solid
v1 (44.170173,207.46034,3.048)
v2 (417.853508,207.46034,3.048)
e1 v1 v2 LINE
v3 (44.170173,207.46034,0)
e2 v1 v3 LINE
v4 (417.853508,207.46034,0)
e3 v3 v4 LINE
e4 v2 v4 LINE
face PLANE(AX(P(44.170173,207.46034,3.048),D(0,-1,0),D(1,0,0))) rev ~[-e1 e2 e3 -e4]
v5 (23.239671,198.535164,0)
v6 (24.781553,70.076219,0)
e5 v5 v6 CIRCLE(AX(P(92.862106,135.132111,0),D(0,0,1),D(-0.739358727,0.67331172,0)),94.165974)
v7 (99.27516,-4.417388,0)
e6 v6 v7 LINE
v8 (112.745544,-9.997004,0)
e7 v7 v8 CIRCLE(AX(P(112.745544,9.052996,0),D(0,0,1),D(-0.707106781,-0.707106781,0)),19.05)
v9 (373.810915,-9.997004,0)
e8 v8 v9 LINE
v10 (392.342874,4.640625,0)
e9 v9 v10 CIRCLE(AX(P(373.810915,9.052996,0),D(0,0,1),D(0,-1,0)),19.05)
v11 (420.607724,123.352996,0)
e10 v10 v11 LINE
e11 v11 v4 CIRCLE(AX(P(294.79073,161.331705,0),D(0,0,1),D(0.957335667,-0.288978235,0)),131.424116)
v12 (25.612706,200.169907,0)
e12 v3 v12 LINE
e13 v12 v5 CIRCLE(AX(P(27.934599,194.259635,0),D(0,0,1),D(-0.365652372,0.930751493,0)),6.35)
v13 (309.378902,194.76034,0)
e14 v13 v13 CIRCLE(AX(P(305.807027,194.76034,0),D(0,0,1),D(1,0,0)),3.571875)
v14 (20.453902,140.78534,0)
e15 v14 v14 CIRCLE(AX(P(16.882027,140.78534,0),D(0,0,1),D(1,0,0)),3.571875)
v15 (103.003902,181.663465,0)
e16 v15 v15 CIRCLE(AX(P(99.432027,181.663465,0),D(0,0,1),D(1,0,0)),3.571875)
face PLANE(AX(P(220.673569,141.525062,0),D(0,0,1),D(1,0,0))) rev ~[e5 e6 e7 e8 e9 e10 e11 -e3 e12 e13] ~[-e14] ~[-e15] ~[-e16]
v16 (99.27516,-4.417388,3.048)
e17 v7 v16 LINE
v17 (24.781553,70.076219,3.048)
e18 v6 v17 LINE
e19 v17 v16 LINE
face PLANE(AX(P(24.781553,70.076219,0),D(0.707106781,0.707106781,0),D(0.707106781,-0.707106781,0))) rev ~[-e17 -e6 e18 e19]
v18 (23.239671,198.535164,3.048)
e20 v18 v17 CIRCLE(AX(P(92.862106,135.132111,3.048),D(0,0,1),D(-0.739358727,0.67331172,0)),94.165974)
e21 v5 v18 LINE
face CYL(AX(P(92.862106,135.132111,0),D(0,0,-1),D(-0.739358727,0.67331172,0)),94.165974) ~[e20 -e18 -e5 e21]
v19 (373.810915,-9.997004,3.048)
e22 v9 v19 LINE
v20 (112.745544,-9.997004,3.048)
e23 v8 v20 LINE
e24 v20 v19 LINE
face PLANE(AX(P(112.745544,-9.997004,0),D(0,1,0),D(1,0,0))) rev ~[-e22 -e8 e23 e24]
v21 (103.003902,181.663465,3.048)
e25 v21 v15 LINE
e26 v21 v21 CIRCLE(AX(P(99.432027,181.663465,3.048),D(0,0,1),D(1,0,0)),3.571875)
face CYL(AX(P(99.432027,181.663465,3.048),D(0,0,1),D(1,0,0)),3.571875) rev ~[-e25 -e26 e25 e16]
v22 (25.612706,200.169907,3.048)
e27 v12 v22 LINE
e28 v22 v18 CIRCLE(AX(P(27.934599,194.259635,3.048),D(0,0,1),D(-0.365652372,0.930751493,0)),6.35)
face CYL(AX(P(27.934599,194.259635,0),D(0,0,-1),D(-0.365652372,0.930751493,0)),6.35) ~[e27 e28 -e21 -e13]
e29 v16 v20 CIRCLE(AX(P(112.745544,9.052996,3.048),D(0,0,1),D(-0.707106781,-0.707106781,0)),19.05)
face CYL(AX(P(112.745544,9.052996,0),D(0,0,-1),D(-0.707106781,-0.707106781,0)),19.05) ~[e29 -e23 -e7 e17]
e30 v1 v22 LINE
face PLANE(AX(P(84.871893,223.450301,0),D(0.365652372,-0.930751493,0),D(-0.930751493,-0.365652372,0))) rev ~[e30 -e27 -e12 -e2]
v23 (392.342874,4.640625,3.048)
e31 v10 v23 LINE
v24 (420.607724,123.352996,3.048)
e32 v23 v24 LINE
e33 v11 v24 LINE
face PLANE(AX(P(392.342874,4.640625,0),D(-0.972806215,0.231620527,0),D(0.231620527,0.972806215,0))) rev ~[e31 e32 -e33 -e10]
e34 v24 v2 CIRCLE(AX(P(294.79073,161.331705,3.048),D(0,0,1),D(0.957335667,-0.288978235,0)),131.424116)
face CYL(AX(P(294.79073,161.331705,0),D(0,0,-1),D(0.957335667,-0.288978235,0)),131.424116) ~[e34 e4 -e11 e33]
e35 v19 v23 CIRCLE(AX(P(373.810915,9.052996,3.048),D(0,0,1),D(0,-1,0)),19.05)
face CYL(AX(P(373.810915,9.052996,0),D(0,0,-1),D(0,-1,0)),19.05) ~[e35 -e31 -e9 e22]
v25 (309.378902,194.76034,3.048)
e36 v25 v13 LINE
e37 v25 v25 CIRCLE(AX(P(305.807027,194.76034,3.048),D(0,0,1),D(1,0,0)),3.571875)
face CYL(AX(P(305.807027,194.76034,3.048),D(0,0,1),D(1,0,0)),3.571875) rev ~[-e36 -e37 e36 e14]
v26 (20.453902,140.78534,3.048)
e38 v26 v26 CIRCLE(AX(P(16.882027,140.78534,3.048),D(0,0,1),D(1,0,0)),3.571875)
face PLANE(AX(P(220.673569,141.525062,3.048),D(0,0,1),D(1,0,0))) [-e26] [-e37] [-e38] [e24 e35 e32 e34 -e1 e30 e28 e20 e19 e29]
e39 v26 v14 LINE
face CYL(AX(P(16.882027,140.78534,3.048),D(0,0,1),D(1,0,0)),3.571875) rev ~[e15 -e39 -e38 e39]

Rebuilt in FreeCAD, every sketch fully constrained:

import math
import FreeCAD as App
import Part
import Sketcher
from FreeCAD import Vector
Q = App.Units.Quantity

doc = App.newDocument("Part")
body = doc.addObject("PartDesign::Body", "Body")

sketch1 = doc.addObject("Sketcher::SketchObject", "Sketch")
body.addObject(sketch1)
sketch1.AttachmentSupport = (doc.XY_Plane, [""])
sketch1.MapMode = "FlatFace"
sketch1.addGeometry(Part.LineSegment(Vector(356.607027, 293.18534, 0), Vector(89.907027, 293.18534, 0)), False)
sketch1.addGeometry(Part.LineSegment(Vector(89.907027, 293.18534, 0), Vector(89.907027, 230.838141, 0)), False)
sketch1.addGeometry(Part.ArcOfCircle(Part.Circle(Vector(81.969527, 230.838141, 0), Vector(0, 0, 1), 7.9375), math.radians(-68.552264), math.radians(0)), False)
sketch1.addGeometry(Part.LineSegment(Vector(84.871893, 223.450301, 0), Vector(25.612706, 200.169907, 0)), False)
sketch1.addGeometry(Part.ArcOfCircle(Part.Circle(Vector(27.934599, 194.259635, 0), Vector(0, 0, 1), 6.35), math.radians(111.447736), math.radians(137.676818)), False)
sketch1.addGeometry(Part.ArcOfCircle(Part.Circle(Vector(92.862106, 135.132111, 0), Vector(0, 0, 1), 94.165974), math.radians(137.676818), math.radians(223.698549)), False)
sketch1.addGeometry(Part.LineSegment(Vector(24.781553, 70.076219, 0), Vector(99.27516, -4.417388, 0)), False)
sketch1.addGeometry(Part.ArcOfCircle(Part.Circle(Vector(112.745544, 9.052996, 0), Vector(0, 0, 1), 19.05), math.radians(-135), math.radians(-90)), False)
sketch1.addGeometry(Part.LineSegment(Vector(112.745544, -9.997004, 0), Vector(373.810915, -9.997004, 0)), False)
sketch1.addGeometry(Part.ArcOfCircle(Part.Circle(Vector(373.810915, 9.052996, 0), Vector(0, 0, 1), 19.05), math.radians(-90), math.radians(-13.392498)), False)
sketch1.addGeometry(Part.LineSegment(Vector(392.342874, 4.640625, 0), Vector(420.607724, 123.352996, 0)), False)
sketch1.addGeometry(Part.ArcOfCircle(Part.Circle(Vector(294.79073, 161.331705, 0), Vector(0, 0, 1), 131.424116), math.radians(-16.796794), math.radians(61.942506)), False)
sketch1.addGeometry(Part.LineSegment(Vector(356.607027, 277.31034, 0), Vector(356.607027, 293.18534, 0)), False)
sketch1.addConstraint(Sketcher.Constraint("Coincident", 0, 2, 1, 1))
sketch1.addConstraint(Sketcher.Constraint("Coincident", 1, 2, 2, 2))
sketch1.addConstraint(Sketcher.Constraint("Coincident", 2, 1, 3, 1))
sketch1.addConstraint(Sketcher.Constraint("Coincident", 3, 2, 4, 1))
sketch1.addConstraint(Sketcher.Constraint("Coincident", 4, 2, 5, 1))
sketch1.addConstraint(Sketcher.Constraint("Coincident", 5, 2, 6, 1))
sketch1.addConstraint(Sketcher.Constraint("Coincident", 6, 2, 7, 1))
sketch1.addConstraint(Sketcher.Constraint("Coincident", 7, 2, 8, 1))
sketch1.addConstraint(Sketcher.Constraint("Coincident", 8, 2, 9, 1))
sketch1.addConstraint(Sketcher.Constraint("Coincident", 9, 2, 10, 1))
sketch1.addConstraint(Sketcher.Constraint("Coincident", 10, 2, 11, 1))
sketch1.addConstraint(Sketcher.Constraint("Coincident", 11, 2, 12, 1))
sketch1.addConstraint(Sketcher.Constraint("Coincident", 12, 2, 0, 1))
sketch1.addConstraint(Sketcher.Constraint("Horizontal", 0))
sketch1.addConstraint(Sketcher.Constraint("Vertical", 1))
sketch1.addConstraint(Sketcher.Constraint("Horizontal", 8))
sketch1.addConstraint(Sketcher.Constraint("Vertical", 12))
sketch1.addConstraint(Sketcher.Constraint("Radius", 4, Q("0.25 in")))
sketch1.addConstraint(Sketcher.Constraint("Radius", 7, Q("0.75 in")))
sketch1.addConstraint(Sketcher.Constraint("Radius", 9, Q("0.75 in")))
sketch1.addConstraint(Sketcher.Constraint("DistanceX", 0, 2, 0, 1, Q("10.5 in")))
sketch1.addConstraint(Sketcher.Constraint("Radius", 2, Q("0.3125 in")))
sketch1.addConstraint(Sketcher.Constraint("DistanceY", 9, 3, 10, 2, Q("4.5 in")))
sketch1.addConstraint(Sketcher.Constraint("DistanceY", 12, 1, 12, 2, Q("0.625 in")))
sketch1.addConstraint(Sketcher.Constraint("DistanceY", 1, 2, 1, 1, 62.347199))
sketch1.addConstraint(Sketcher.Constraint("Radius", 5, 94.165974))
sketch1.addConstraint(Sketcher.Constraint("Radius", 11, 131.424116))
sketch1.addConstraint(Sketcher.Constraint("DistanceY", 7, 3, 4, 3, Q("7.2915999 in")))
sketch1.addConstraint(Sketcher.Constraint("DistanceX", 8, 1, 8, 2, 261.065371))
sketch1.addConstraint(Sketcher.Constraint("DistanceX", -1, 1, 4, 3, 27.934599))
sketch1.addConstraint(Sketcher.Constraint("DistanceY", -1, 1, 2, 1, 223.450301))
sketch1.addConstraint(Sketcher.Constraint("DistanceY", 2, 3, 0, 2, 62.347199))
sketch1.addConstraint(Sketcher.Constraint("DistanceX", 3, 2, 5, 3, 67.249399))
sketch1.addConstraint(Sketcher.Constraint("DistanceY", 6, 2, 5, 3, 139.549498))
sketch1.addConstraint(Sketcher.Constraint("Distance", 6, 105.34987))
sketch1.addConstraint(Sketcher.Constraint("Distance", 10, 122.030852))
sketch1.addConstraint(Sketcher.Constraint("DistanceY", -1, 1, 2, 3, 230.838141))
sketch1.addConstraint(Sketcher.Constraint("DistanceY", -1, 1, 5, 3, 135.132111))
sketch1.addConstraint(Sketcher.Constraint("DistanceX", -1, 1, 11, 3, 294.79073))
sketch1.addConstraint(Sketcher.Constraint("DistanceX", -1, 1, 4, 2, 23.239671))
sketch1.addConstraint(Sketcher.Constraint("DistanceY", -1, 1, 5, 2, 70.076219))
sketch1.addConstraint(Sketcher.Constraint("DistanceX", -1, 1, 6, 2, 99.27516))
sketch1.addConstraint(Sketcher.Constraint("DistanceX", 2, 3, 5, 3, 10.892579))
sketch1.addConstraint(Sketcher.Constraint("DistanceX", 7, 3, 9, 3, 261.065371))
sketch1.addConstraint(Sketcher.Constraint("DistanceX", 5, 2, 7, 2, 87.963991))
pad1 = doc.addObject("PartDesign::Pad", "Pad")
body.addObject(pad1)
pad1.Profile = sketch1
pad1.Length = Q("0.12 in")

sketch2 = doc.addObject("Sketcher::SketchObject", "Sketch001")
body.addObject(sketch2)
sketch2.AttachmentSupport = (doc.XY_Plane, [""])
sketch2.MapMode = "FlatFace"
sketch2.AttachmentOffset = App.Placement(Vector(0, 0, 0.12 * 25.4), App.Rotation())
sketch2.addGeometry(Part.Circle(Vector(261.4, 283.7, 0), Vector(0, 0, 1), 2.4), False)
sketch2.addGeometry(Part.Circle(Vector(197.9, 283.7, 0), Vector(0, 0, 1), 2.4), False)
sketch2.addGeometry(Part.Circle(Vector(134.4, 283.7, 0), Vector(0, 0, 1), 2.4), False)
sketch2.addConstraint(Sketcher.Constraint("Equal", 0, 1))
sketch2.addConstraint(Sketcher.Constraint("Equal", 1, 2))
sketch2.addConstraint(Sketcher.Constraint("Horizontal", 0, 3, 1, 3))
sketch2.addConstraint(Sketcher.Constraint("Horizontal", 1, 3, 2, 3))
sketch2.addConstraint(Sketcher.Constraint("Diameter", 0, Q("0.1875 in")))
sketch2.addConstraint(Sketcher.Constraint("DistanceX", 2, 3, 0, 3, Q("5 in")))
sketch2.addConstraint(Sketcher.Constraint("DistanceX", 1, 3, 0, 3, Q("2.5 in")))
sketch2.addConstraint(Sketcher.Constraint("DistanceY", -1, 1, 0, 3, 283.66034))
sketch2.addConstraint(Sketcher.Constraint("DistanceX", -1, 1, 0, 3, 261.357027))
pocket1 = doc.addObject("PartDesign::Pocket", "Pocket")
body.addObject(pocket1)
pocket1.Profile = sketch2
pocket1.Type = "ThroughAll"

sketch3 = doc.addObject("Sketcher::SketchObject", "Sketch002")
body.addObject(sketch3)
sketch3.AttachmentSupport = (doc.XY_Plane, [""])
sketch3.MapMode = "FlatFace"
sketch3.AttachmentOffset = App.Placement(Vector(0, 0, 0.12 * 25.4), App.Rotation())
sketch3.addGeometry(Part.Circle(Vector(99.4, 181.7, 0), Vector(0, 0, 1), 3.6), False)
sketch3.addGeometry(Part.Circle(Vector(16.9, 140.8, 0), Vector(0, 0, 1), 3.6), False)
sketch3.addGeometry(Part.Circle(Vector(305.8, 194.8, 0), Vector(0, 0, 1), 3.6), False)
sketch3.addConstraint(Sketcher.Constraint("Equal", 0, 1))
sketch3.addConstraint(Sketcher.Constraint("Equal", 1, 2))
sketch3.addConstraint(Sketcher.Constraint("Diameter", 0, Q("0.28125 in")))
sketch3.addConstraint(Sketcher.Constraint("DistanceX", 1, 3, 0, 3, Q("3.25 in")))
sketch3.addConstraint(Sketcher.Constraint("DistanceY", 1, 3, 0, 3, Q("1.609375 in")))
sketch3.addConstraint(Sketcher.Constraint("DistanceX", 0, 3, 2, 3, Q("8.125 in")))
sketch3.addConstraint(Sketcher.Constraint("DistanceY", 0, 3, 2, 3, Q("0.515625 in")))
sketch3.addConstraint(Sketcher.Constraint("DistanceY", -1, 1, 1, 3, 140.78534))
sketch3.addConstraint(Sketcher.Constraint("DistanceX", -1, 1, 0, 3, 99.432027))
pocket2 = doc.addObject("PartDesign::Pocket", "Pocket001")
body.addObject(pocket2)
pocket2.Profile = sketch3
pocket2.Length = Q("0.375 in")

sketch4 = doc.addObject("Sketcher::SketchObject", "Sketch003")
body.addObject(sketch4)
sketch4.AttachmentSupport = (doc.XY_Plane, [""])
sketch4.MapMode = "FlatFace"
sketch4.AttachmentOffset = App.Placement(Vector(0, 0, 0.12 * 25.4), App.Rotation())
sketch4.addGeometry(Part.LineSegment(Vector(44.2, 207.5, 0), Vector(417.9, 207.5, 0)), False)
sketch4.addGeometry(Part.ArcOfCircle(Part.Circle(Vector(294.8, 161.3, 0), Vector(0, 0, 1), 131.4), math.radians(21), math.radians(62)), False)
sketch4.addGeometry(Part.LineSegment(Vector(356.6, 277.3, 0), Vector(356.6, 293.2, 0)), False)
sketch4.addGeometry(Part.LineSegment(Vector(356.6, 293.2, 0), Vector(89.9, 293.2, 0)), False)
sketch4.addGeometry(Part.LineSegment(Vector(89.9, 293.2, 0), Vector(89.9, 230.8, 0)), False)
sketch4.addGeometry(Part.ArcOfCircle(Part.Circle(Vector(82, 230.8, 0), Vector(0, 0, 1), 7.9), math.radians(-69), math.radians(0)), False)
sketch4.addGeometry(Part.LineSegment(Vector(84.9, 223.5, 0), Vector(44.2, 207.5, 0)), False)
sketch4.addGeometry(Part.Circle(Vector(134.4, 283.7, 0), Vector(0, 0, 1), 2.4), False)
sketch4.addGeometry(Part.Circle(Vector(197.9, 283.7, 0), Vector(0, 0, 1), 2.4), False)
sketch4.addGeometry(Part.Circle(Vector(261.4, 283.7, 0), Vector(0, 0, 1), 2.4), False)
sketch4.addConstraint(Sketcher.Constraint("Coincident", 0, 2, 1, 1))
sketch4.addConstraint(Sketcher.Constraint("Coincident", 1, 2, 2, 1))
sketch4.addConstraint(Sketcher.Constraint("Coincident", 2, 2, 3, 1))
sketch4.addConstraint(Sketcher.Constraint("Coincident", 3, 2, 4, 1))
sketch4.addConstraint(Sketcher.Constraint("Tangent", 4, 2, 5, 2))
sketch4.addConstraint(Sketcher.Constraint("Tangent", 5, 1, 6, 1))
sketch4.addConstraint(Sketcher.Constraint("Coincident", 6, 2, 0, 1))
sketch4.addConstraint(Sketcher.Constraint("Horizontal", 0))
sketch4.addConstraint(Sketcher.Constraint("Vertical", 2))
sketch4.addConstraint(Sketcher.Constraint("Horizontal", 3))
sketch4.addConstraint(Sketcher.Constraint("Vertical", 4))
sketch4.addConstraint(Sketcher.Constraint("Equal", 7, 8))
sketch4.addConstraint(Sketcher.Constraint("Equal", 8, 9))
sketch4.addConstraint(Sketcher.Constraint("Horizontal", 7, 3, 8, 3))
sketch4.addConstraint(Sketcher.Constraint("Horizontal", 8, 3, 9, 3))
sketch4.addConstraint(Sketcher.Constraint("Diameter", 7, Q("0.1875 in")))
sketch4.addConstraint(Sketcher.Constraint("DistanceX", 3, 2, 3, 1, Q("10.5 in")))
sketch4.addConstraint(Sketcher.Constraint("Radius", 5, Q("0.3125 in")))
sketch4.addConstraint(Sketcher.Constraint("DistanceX", 7, 3, 9, 3, Q("5 in")))
sketch4.addConstraint(Sketcher.Constraint("DistanceY", 0, 2, 9, 3, Q("3 in")))
sketch4.addConstraint(Sketcher.Constraint("DistanceX", 7, 3, 8, 3, Q("2.5 in")))
sketch4.addConstraint(Sketcher.Constraint("DistanceY", 2, 1, 2, 2, Q("0.625 in")))
sketch4.addConstraint(Sketcher.Constraint("DistanceY", 0, 2, 1, 2, Q("2.75 in")))
sketch4.addConstraint(Sketcher.Constraint("DistanceX", 9, 3, 1, 2, Q("3.75 in")))
sketch4.addConstraint(Sketcher.Constraint("DistanceY", 4, 2, 4, 1, 62.347199))
sketch4.addConstraint(Sketcher.Constraint("Radius", 1, 131.424116))
sketch4.addConstraint(Sketcher.Constraint("DistanceY", -1, 1, 5, 1, 223.450301))
sketch4.addConstraint(Sketcher.Constraint("DistanceX", 0, 1, 0, 2, 373.683335))
sketch4.addConstraint(Sketcher.Constraint("DistanceX", -1, 1, 1, 3, 294.79073))
sketch4.addConstraint(Sketcher.Constraint("DistanceY", -1, 1, 5, 3, 230.838141))
pocket3 = doc.addObject("PartDesign::Pocket", "Pocket002")
body.addObject(pocket3)
pocket3.Profile = sketch4
pocket3.Length = Q("0.25 in")

doc.recompute()
